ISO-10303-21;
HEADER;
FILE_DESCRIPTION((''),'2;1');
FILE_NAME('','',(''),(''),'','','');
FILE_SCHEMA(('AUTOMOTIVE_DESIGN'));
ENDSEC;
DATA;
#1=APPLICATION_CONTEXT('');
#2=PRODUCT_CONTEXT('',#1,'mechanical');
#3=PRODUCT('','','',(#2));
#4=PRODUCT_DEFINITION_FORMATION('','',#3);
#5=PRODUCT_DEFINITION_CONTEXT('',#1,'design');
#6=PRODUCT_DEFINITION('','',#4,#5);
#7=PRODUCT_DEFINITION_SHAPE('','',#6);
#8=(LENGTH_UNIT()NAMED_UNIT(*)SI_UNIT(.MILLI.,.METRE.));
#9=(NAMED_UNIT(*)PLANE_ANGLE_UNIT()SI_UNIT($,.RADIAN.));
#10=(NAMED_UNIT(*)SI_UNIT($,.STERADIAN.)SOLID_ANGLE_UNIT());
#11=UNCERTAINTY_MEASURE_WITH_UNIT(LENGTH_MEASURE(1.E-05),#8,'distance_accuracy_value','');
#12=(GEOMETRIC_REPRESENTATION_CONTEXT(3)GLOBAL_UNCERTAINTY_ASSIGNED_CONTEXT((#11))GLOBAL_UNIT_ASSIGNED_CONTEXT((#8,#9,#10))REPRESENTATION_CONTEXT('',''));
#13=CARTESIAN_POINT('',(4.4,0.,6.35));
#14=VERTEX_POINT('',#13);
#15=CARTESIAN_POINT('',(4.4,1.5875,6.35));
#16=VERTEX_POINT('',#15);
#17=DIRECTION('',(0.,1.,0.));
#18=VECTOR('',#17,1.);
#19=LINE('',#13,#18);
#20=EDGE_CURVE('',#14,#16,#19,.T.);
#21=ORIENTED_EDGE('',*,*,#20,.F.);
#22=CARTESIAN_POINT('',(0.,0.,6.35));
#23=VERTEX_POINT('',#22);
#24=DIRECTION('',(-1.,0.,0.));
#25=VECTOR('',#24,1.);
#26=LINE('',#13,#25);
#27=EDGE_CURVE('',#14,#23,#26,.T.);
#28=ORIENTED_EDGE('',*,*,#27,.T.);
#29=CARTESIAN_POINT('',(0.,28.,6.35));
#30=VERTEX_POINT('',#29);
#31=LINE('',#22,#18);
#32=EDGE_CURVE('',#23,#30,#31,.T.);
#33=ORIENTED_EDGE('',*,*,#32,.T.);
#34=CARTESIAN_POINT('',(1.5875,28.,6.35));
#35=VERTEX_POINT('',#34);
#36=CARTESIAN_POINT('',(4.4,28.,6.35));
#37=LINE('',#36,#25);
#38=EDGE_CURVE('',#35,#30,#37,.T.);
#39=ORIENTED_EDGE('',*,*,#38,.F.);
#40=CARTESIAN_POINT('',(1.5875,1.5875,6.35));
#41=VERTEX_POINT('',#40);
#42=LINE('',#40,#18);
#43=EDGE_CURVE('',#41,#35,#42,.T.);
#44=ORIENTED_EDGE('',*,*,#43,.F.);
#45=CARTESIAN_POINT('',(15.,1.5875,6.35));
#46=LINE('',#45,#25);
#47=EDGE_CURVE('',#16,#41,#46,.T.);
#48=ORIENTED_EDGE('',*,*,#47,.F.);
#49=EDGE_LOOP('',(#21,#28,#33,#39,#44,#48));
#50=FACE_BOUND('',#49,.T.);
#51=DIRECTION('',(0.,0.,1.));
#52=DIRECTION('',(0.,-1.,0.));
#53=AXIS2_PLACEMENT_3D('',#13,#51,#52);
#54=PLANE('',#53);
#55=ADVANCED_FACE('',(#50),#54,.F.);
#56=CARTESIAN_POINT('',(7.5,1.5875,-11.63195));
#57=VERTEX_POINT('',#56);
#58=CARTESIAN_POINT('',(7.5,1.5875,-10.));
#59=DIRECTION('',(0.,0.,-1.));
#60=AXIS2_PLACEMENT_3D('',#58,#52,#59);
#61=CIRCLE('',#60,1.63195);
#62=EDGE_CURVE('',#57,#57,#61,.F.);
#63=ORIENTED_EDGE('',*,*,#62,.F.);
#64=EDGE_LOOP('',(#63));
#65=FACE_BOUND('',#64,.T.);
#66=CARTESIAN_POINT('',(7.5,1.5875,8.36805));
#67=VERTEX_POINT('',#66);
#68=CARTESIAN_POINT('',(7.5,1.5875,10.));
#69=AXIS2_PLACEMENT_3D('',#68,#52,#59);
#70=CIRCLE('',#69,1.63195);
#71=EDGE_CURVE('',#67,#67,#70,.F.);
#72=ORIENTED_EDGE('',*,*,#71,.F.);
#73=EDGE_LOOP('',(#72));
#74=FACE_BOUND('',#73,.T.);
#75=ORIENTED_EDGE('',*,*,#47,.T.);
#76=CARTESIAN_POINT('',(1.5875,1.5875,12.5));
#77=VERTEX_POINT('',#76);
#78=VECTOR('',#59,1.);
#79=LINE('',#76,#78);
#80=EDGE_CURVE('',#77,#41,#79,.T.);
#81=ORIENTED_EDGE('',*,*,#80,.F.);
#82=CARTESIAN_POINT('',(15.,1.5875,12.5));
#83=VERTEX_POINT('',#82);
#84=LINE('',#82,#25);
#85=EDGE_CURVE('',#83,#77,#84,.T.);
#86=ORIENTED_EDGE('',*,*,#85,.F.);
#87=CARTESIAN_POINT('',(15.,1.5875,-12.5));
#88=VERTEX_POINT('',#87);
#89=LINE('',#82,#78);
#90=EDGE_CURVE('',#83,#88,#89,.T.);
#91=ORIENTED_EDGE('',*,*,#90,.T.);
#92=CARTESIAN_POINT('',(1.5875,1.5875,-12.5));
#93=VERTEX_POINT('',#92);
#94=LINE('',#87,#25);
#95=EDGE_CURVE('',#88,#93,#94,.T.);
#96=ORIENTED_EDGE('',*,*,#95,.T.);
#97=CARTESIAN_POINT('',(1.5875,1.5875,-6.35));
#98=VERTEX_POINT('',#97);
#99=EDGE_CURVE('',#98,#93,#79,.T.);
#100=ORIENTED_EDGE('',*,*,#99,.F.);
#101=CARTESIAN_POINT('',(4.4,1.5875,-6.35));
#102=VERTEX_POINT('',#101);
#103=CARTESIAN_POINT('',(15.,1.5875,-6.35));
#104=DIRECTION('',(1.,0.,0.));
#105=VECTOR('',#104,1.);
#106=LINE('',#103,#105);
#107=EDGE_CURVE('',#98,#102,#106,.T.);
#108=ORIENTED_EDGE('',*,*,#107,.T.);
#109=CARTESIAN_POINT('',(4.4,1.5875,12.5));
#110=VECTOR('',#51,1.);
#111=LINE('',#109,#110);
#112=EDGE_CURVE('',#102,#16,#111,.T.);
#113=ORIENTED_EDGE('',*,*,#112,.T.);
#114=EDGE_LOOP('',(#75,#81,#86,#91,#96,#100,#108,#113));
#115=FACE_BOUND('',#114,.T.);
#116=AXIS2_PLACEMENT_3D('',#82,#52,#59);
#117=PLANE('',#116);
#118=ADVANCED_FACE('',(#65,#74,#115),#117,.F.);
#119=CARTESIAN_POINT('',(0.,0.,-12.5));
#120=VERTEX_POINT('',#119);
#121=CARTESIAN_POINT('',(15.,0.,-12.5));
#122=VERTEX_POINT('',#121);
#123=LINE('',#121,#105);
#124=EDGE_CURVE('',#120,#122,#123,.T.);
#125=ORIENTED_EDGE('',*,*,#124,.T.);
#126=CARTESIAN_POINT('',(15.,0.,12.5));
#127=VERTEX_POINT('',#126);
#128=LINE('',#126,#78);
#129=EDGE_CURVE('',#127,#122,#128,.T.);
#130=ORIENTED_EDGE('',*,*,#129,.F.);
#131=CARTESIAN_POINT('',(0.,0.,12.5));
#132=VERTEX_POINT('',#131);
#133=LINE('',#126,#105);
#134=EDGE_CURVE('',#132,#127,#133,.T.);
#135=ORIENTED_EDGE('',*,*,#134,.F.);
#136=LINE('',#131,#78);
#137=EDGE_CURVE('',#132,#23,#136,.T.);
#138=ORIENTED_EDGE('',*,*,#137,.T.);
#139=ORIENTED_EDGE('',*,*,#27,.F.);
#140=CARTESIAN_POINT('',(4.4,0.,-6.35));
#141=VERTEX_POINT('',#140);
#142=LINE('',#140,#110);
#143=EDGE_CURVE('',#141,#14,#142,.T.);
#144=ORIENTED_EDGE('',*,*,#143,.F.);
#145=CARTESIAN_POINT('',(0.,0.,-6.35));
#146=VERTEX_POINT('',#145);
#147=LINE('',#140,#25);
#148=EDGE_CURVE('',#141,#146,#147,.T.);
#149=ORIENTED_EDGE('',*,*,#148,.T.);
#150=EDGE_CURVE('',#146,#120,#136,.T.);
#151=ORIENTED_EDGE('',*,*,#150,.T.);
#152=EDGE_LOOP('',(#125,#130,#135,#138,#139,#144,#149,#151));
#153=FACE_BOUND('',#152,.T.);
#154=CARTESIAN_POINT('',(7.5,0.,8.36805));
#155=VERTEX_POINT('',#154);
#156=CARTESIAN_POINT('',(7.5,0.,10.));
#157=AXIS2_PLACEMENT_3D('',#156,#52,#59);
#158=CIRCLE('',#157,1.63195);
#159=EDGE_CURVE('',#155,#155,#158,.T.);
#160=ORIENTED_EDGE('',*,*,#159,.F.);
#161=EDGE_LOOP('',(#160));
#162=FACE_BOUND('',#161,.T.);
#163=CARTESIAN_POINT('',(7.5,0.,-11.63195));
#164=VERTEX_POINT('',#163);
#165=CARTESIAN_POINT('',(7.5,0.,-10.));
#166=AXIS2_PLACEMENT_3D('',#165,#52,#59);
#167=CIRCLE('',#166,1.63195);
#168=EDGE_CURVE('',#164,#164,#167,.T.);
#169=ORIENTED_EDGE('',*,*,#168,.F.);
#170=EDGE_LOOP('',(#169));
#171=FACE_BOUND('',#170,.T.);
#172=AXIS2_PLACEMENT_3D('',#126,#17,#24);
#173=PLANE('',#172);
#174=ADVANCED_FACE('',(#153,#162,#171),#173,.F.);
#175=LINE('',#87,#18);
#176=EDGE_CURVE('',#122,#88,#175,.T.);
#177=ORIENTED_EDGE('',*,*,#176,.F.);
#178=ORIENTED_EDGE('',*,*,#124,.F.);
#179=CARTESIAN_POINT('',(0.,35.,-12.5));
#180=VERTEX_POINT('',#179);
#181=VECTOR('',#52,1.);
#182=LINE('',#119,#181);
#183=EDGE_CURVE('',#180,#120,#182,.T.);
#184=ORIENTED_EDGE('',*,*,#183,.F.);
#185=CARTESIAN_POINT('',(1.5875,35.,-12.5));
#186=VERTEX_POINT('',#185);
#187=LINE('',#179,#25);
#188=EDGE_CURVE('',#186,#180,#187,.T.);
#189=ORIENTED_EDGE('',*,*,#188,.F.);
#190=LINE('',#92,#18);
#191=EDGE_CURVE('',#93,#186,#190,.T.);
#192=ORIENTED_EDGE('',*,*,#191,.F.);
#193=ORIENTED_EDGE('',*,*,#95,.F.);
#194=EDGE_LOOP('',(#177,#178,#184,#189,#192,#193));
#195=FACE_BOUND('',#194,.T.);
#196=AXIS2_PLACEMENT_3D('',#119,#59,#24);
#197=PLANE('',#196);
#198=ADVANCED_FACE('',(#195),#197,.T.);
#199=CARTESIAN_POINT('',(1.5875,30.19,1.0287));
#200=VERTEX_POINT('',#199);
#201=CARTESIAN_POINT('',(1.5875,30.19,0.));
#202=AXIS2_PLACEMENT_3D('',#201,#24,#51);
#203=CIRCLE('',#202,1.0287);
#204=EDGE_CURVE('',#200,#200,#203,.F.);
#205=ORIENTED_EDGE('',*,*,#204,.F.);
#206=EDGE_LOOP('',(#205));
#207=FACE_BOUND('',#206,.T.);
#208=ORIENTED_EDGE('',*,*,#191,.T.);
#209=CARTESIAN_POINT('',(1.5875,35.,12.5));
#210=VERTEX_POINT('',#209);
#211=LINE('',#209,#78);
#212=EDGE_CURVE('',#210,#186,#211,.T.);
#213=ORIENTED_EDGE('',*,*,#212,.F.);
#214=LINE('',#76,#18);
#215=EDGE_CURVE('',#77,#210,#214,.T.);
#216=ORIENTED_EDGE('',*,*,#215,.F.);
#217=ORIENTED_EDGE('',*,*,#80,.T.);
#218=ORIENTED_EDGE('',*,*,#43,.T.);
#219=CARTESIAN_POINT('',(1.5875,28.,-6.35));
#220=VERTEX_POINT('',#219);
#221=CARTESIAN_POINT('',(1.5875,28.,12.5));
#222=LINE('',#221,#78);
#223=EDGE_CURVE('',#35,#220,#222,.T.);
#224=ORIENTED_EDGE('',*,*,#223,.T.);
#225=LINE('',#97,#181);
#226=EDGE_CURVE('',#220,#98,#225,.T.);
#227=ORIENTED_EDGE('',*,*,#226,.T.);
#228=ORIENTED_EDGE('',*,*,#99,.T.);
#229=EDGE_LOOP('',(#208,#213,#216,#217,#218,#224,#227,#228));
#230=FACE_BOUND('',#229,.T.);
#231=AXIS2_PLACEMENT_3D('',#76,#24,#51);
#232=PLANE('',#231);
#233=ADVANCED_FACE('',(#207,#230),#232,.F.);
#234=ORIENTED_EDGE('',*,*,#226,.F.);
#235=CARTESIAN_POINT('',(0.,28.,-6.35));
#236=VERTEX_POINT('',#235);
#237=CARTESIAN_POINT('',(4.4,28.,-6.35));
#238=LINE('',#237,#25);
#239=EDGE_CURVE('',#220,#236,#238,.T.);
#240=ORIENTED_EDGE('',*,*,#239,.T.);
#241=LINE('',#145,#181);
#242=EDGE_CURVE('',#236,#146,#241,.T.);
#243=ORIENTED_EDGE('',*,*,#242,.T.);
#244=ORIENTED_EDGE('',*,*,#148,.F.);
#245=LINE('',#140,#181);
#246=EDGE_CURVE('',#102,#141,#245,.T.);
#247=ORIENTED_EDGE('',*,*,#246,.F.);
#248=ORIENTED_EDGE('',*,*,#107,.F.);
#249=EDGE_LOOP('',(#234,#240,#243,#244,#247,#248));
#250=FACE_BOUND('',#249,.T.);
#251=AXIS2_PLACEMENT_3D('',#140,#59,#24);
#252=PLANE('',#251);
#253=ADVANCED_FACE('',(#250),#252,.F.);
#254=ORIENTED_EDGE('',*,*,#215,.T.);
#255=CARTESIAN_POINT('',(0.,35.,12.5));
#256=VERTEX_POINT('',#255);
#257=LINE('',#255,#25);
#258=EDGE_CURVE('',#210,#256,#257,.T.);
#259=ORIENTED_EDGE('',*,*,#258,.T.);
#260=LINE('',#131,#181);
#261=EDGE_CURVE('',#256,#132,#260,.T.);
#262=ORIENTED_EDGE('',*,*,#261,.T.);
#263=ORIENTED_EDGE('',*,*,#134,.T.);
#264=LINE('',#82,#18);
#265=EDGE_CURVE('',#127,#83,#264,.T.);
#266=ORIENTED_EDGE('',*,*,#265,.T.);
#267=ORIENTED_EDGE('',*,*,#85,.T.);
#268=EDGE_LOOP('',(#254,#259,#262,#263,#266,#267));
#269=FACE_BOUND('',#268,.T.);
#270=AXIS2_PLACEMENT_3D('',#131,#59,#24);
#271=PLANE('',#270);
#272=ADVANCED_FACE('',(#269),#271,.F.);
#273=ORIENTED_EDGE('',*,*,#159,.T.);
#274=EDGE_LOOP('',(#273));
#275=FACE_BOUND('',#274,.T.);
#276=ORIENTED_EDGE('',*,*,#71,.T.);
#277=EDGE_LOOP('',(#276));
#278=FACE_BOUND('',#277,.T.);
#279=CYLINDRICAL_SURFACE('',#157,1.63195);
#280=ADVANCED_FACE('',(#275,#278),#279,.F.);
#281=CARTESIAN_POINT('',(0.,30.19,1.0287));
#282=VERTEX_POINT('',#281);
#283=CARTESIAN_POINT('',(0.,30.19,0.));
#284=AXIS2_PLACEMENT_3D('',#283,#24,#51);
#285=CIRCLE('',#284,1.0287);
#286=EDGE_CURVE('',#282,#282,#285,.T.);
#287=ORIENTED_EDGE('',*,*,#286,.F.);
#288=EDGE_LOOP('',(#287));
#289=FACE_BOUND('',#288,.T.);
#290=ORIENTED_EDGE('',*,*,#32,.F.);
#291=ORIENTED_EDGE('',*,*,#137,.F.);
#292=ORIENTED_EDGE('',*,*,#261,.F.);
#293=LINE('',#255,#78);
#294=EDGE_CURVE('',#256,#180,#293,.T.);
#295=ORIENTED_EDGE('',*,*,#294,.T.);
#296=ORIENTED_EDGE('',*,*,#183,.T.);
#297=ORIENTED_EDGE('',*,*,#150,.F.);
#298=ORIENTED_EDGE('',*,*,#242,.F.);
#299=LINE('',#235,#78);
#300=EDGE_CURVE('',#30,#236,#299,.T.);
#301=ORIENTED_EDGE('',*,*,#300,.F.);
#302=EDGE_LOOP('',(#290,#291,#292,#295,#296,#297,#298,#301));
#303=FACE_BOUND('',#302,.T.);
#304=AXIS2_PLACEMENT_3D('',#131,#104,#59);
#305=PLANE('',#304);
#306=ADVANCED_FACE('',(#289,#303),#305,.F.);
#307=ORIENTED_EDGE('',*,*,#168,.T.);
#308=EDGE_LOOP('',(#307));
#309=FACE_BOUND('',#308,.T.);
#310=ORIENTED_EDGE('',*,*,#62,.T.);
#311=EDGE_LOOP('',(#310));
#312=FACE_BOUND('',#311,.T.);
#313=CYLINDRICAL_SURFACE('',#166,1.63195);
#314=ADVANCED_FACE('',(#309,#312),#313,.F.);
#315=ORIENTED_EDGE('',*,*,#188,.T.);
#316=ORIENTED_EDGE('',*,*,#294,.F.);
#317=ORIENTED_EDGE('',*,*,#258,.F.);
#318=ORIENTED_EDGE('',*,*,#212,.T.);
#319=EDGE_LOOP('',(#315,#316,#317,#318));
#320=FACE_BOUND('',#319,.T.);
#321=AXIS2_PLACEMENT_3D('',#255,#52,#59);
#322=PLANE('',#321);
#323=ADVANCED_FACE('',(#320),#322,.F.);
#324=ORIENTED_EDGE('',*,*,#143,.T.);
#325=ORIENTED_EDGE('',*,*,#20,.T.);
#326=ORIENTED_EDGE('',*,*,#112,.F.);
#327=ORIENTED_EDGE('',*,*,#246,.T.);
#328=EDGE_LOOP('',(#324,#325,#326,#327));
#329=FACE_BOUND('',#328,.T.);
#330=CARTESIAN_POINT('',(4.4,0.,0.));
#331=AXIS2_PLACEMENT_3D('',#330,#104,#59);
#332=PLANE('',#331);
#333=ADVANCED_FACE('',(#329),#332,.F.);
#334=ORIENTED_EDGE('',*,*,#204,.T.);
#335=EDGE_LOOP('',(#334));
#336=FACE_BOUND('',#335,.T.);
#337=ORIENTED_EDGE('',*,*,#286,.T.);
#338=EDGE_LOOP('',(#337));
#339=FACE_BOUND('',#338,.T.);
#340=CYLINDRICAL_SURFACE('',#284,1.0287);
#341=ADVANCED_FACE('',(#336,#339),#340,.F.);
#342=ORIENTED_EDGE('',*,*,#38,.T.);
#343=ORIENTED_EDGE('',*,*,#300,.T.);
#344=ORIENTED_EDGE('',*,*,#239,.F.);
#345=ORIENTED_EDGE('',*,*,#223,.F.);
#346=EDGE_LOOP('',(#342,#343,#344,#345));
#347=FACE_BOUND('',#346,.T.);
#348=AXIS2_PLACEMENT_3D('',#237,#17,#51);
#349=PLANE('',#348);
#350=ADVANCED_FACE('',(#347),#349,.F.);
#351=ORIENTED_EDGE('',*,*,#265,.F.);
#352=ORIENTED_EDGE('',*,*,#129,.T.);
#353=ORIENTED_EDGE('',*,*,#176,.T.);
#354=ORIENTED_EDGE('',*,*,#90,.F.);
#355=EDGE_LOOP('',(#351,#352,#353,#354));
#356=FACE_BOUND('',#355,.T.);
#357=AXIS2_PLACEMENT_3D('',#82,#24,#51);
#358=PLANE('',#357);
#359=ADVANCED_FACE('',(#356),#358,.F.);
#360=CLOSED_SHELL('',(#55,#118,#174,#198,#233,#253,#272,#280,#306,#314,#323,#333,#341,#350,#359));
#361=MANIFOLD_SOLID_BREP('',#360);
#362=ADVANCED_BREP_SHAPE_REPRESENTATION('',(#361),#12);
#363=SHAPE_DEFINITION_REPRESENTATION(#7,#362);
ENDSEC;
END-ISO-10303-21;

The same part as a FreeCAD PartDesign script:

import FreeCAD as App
import Part
import Sketcher

V = App.Vector

doc = App.newDocument("Part")
body = doc.addObject("PartDesign::Body", "Body")

sketch1 = doc.addObject("Sketcher::SketchObject", "Sketch")
body.addObject(sketch1)
sketch1.AttachmentSupport = (doc.XY_Plane, [""])
sketch1.MapMode = "FlatFace"
sketch1.addGeometry(Part.LineSegment(V(0, 0, 0), V(15, 0, 0)), False)
sketch1.addGeometry(Part.LineSegment(V(15, 0, 0), V(15, 1.6, 0)), False)
sketch1.addGeometry(Part.LineSegment(V(15, 1.6, 0), V(1.6, 1.6, 0)), False)
sketch1.addGeometry(Part.LineSegment(V(1.6, 1.6, 0), V(1.6, 35, 0)), False)
sketch1.addGeometry(Part.LineSegment(V(1.6, 35, 0), V(0, 35, 0)), False)
sketch1.addGeometry(Part.LineSegment(V(0, 35, 0), V(0, 0, 0)), False)
sketch1.addConstraint(Sketcher.Constraint("Coincident", 0, 2, 1, 1))
sketch1.addConstraint(Sketcher.Constraint("Coincident", 1, 2, 2, 1))
sketch1.addConstraint(Sketcher.Constraint("Coincident", 2, 2, 3, 1))
sketch1.addConstraint(Sketcher.Constraint("Coincident", 3, 2, 4, 1))
sketch1.addConstraint(Sketcher.Constraint("Coincident", 4, 2, 5, 1))
sketch1.addConstraint(Sketcher.Constraint("Coincident", 5, 2, 0, 1))
sketch1.addConstraint(Sketcher.Constraint("Horizontal", 0))
sketch1.addConstraint(Sketcher.Constraint("Vertical", 1))
sketch1.addConstraint(Sketcher.Constraint("Horizontal", 2))
sketch1.addConstraint(Sketcher.Constraint("Vertical", 3))
sketch1.addConstraint(Sketcher.Constraint("Horizontal", 4))
sketch1.addConstraint(Sketcher.Constraint("Vertical", 5))
sketch1.addConstraint(Sketcher.Constraint("Coincident", 5, 2, -1, 1))
sketch1.addConstraint(Sketcher.Constraint("Equal", 4, 1))
sketch1.addConstraint(Sketcher.Constraint("DistanceX", 0, 1, 0, 2, 15.0))
sketch1.addConstraint(Sketcher.Constraint("DistanceY", 5, 2, 5, 1, 35.0))
sketch1.addConstraint(Sketcher.Constraint("DistanceX", 2, 2, 2, 1, 13.4125))
pad1 = doc.addObject("PartDesign::Pad", "Pad")
body.addObject(pad1)
pad1.Profile = sketch1
pad1.Length = 25
pad1.Midplane = True

sketch2 = doc.addObject("Sketcher::SketchObject", "Sketch001")
body.addObject(sketch2)
sketch2.AttachmentSupport = (doc.XZ_Plane, [""])
sketch2.MapMode = "FlatFace"
sketch2.addGeometry(Part.Circle(V(7.5, -10, 0), V(0, 0, 1), 1.6), False)
sketch2.addGeometry(Part.Circle(V(7.5, 10, 0), V(0, 0, 1), 1.6), False)
sketch2.addConstraint(Sketcher.Constraint("Equal", 0, 1))
sketch2.addConstraint(Sketcher.Constraint("Symmetric", 0, 3, 1, 3, -1))
sketch2.addConstraint(Sketcher.Constraint("DistanceY", 0, 3, -1, 1, 10.0))
sketch2.addConstraint(Sketcher.Constraint("Diameter", 0, 3.2639))
sketch2.addConstraint(Sketcher.Constraint("DistanceX", -1, 1, 0, 3, 7.5))
doc.recompute()
hole = doc.addObject("PartDesign::Hole", "Hole")
body.addObject(hole)
hole.Profile = sketch2
hole.ThreadType = "None"
hole.Diameter = 3.2639
hole.DepthType = "ThroughAll"

sketch3 = doc.addObject("Sketcher::SketchObject", "Sketch002")
body.addObject(sketch3)
sketch3.AttachmentSupport = (doc.YZ_Plane, [""])
sketch3.MapMode = "FlatFace"
sketch3.addGeometry(Part.Circle(V(30.2, 0, 0), V(0, 0, 1), 1), False)
sketch3.addConstraint(Sketcher.Constraint("PointOnObject", 0, 3, -1))
sketch3.addConstraint(Sketcher.Constraint("Diameter", 0, 2.0574))
sketch3.addConstraint(Sketcher.Constraint("DistanceX", -1, 1, 0, 3, 30.19))
doc.recompute()
hole2 = doc.addObject("PartDesign::Hole", "Hole001")
body.addObject(hole2)
hole2.Profile = sketch3
hole2.ThreadType = "None"
hole2.Diameter = 2.0574
hole2.DepthType = "ThroughAll"
hole2.Reversed = True

sketch4 = doc.addObject("Sketcher::SketchObject", "Sketch003")
body.addObject(sketch4)
sketch4.AttachmentSupport = (doc.YZ_Plane, [""])
sketch4.MapMode = "FlatFace"
sketch4.addGeometry(Part.LineSegment(V(28, -6, 0), V(0, -6, 0)), False)
sketch4.addGeometry(Part.LineSegment(V(0, -6, 0), V(0, 6, 0)), False)
sketch4.addGeometry(Part.LineSegment(V(0, 6, 0), V(28, 6, 0)), False)
sketch4.addGeometry(Part.LineSegment(V(28, 6, 0), V(28, -6, 0)), False)
sketch4.addConstraint(Sketcher.Constraint("Coincident", 0, 2, 1, 1))
sketch4.addConstraint(Sketcher.Constraint("Coincident", 1, 2, 2, 1))
sketch4.addConstraint(Sketcher.Constraint("Coincident", 2, 2, 3, 1))
sketch4.addConstraint(Sketcher.Constraint("Coincident", 3, 2, 0, 1))
sketch4.addConstraint(Sketcher.Constraint("Horizontal", 0))
sketch4.addConstraint(Sketcher.Constraint("Vertical", 1))
sketch4.addConstraint(Sketcher.Constraint("Horizontal", 2))
sketch4.addConstraint(Sketcher.Constraint("Vertical", 3))
sketch4.addConstraint(Sketcher.Constraint("Symmetric", 0, 2, 1, 2, -1, 1))
sketch4.addConstraint(Sketcher.Constraint("DistanceX", 0, 2, 0, 1, 28.0))
sketch4.addConstraint(Sketcher.Constraint("DistanceY", 1, 1, 1, 2, 12.7))
pocket1 = doc.addObject("PartDesign::Pocket", "Pocket")
body.addObject(pocket1)
pocket1.Profile = sketch4
pocket1.Length = 4.4
pocket1.Reversed = True

doc.recompute()
